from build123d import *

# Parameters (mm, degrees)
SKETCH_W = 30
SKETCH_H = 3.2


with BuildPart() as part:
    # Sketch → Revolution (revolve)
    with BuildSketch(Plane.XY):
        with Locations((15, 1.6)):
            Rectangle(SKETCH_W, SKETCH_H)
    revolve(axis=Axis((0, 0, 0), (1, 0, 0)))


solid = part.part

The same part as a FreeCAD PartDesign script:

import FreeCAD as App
import Part
import Sketcher
Q = App.Units.Quantity

doc = App.newDocument("Part")
body = doc.addObject("PartDesign::Body", "Body")

# Sketch on XY plane
sketch1 = body.newObject("Sketcher::SketchObject", "Sketch")
sketch1.AttachmentSupport = (doc.getObject("XY_Plane"), [""])
sketch1.MapMode = "FlatFace"
sketch1.addGeometry([
    Part.LineSegment(App.Vector(0, 3.2, 0), App.Vector(0, 0, 0)),
    Part.LineSegment(App.Vector(0, 0, 0), App.Vector(30, 0, 0)),
    Part.LineSegment(App.Vector(30, 0, 0), App.Vector(30, 3.2, 0)),
    Part.LineSegment(App.Vector(30, 3.2, 0), App.Vector(0, 3.2, 0)),
], False)
sketch1.addConstraint([
    Sketcher.Constraint("Coincident", 0, 2, 1, 1),
    Sketcher.Constraint("Coincident", 1, 2, 2, 1),
    Sketcher.Constraint("Coincident", 2, 2, 3, 1),
    Sketcher.Constraint("Coincident", 3, 2, 0, 1),
    Sketcher.Constraint("Vertical", 0),
    Sketcher.Constraint("Horizontal", 1),
    Sketcher.Constraint("Vertical", 2),
    Sketcher.Constraint("Horizontal", 3),
    Sketcher.Constraint("Coincident", 0, 2, -1, 1),
    Sketcher.Constraint("DistanceX", 1, 1, 1, 2, Q("30 mm")),
    Sketcher.Constraint("DistanceY", 0, 2, 0, 1, Q("3.2 mm")),
])
revolution = body.newObject("PartDesign::Revolution", "Revolution")
revolution.Profile = sketch1
revolution.ReferenceAxis = (sketch1, ["H_Axis"])
revolution.Angle = 360

doc.recompute()
